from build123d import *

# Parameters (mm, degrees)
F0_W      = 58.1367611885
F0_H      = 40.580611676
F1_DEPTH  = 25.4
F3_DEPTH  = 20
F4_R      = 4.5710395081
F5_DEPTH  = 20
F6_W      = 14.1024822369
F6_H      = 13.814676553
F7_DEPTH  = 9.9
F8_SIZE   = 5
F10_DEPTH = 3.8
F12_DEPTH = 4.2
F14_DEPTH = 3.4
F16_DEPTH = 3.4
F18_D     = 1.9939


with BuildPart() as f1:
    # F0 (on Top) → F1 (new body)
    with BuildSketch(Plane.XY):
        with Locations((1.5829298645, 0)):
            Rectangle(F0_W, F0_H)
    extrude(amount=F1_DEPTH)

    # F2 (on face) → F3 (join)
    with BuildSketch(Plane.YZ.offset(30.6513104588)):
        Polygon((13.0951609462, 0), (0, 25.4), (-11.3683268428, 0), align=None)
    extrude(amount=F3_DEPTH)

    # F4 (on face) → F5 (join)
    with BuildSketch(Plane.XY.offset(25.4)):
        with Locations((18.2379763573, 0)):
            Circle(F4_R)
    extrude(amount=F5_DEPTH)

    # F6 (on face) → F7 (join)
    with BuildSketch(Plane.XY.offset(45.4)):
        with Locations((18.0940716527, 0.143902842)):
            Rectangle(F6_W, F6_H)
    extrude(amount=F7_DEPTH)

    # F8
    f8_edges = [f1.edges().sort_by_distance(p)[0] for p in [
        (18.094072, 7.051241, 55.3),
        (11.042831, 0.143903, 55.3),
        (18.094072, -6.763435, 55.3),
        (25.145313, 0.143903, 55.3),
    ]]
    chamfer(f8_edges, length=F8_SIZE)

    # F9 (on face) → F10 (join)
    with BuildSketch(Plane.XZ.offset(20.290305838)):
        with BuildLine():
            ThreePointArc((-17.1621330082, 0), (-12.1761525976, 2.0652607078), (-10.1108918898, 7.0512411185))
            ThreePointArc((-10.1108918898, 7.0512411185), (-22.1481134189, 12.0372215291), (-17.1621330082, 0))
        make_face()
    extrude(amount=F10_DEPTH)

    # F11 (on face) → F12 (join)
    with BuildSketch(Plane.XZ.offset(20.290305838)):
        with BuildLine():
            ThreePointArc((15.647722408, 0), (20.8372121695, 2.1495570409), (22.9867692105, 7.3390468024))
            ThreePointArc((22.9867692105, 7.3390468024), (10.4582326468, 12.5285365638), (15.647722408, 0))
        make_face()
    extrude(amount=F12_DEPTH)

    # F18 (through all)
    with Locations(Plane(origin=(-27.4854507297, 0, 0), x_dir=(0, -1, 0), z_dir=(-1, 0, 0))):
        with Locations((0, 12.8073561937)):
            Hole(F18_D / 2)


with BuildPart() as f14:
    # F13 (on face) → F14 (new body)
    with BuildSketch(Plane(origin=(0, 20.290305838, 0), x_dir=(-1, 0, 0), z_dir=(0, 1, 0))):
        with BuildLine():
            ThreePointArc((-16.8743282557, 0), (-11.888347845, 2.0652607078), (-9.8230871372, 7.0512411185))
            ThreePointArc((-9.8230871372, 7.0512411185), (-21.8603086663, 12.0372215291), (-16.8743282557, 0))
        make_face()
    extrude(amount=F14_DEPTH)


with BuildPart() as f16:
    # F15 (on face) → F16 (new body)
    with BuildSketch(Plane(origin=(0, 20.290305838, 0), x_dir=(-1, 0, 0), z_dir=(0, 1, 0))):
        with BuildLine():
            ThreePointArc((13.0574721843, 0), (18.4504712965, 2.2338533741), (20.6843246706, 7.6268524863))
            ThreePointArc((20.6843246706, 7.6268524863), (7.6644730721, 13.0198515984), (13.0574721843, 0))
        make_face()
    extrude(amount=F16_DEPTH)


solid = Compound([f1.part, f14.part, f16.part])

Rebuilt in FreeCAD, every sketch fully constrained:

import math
import FreeCAD as App
import Part
import Sketcher
from FreeCAD import Vector
Q = App.Units.Quantity


def edges_at(feature, points):
    """Names of the edges that pass closest to the given points."""
    edges = feature.Shape.Edges
    near = lambda p: min(range(len(edges)), key=lambda i: edges[i].distToShape(Part.Vertex(*p))[0])
    return sorted({f"Edge{near(p) + 1}" for p in points})

doc = App.newDocument("Part")
body = doc.addObject("PartDesign::Body", "Body")

sketch1 = doc.addObject("Sketcher::SketchObject", "Sketch")
body.addObject(sketch1)
sketch1.AttachmentSupport = (doc.XY_Plane, [""])
sketch1.MapMode = "FlatFace"
sketch1.addGeometry([
    Part.LineSegment(Vector(-27, 20, 0), Vector(-27, -20, 0)),
    Part.LineSegment(Vector(-27, -20, 0), Vector(31, -20, 0)),
    Part.LineSegment(Vector(31, -20, 0), Vector(31, 20, 0)),
    Part.LineSegment(Vector(31, 20, 0), Vector(-27, 20, 0)),
], False)
sketch1.addConstraint([
    Sketcher.Constraint("Coincident", 0, 2, 1, 1),
    Sketcher.Constraint("Coincident", 1, 2, 2, 1),
    Sketcher.Constraint("Coincident", 2, 2, 3, 1),
    Sketcher.Constraint("Coincident", 3, 2, 0, 1),
    Sketcher.Constraint("Vertical", 0),
    Sketcher.Constraint("Horizontal", 1),
    Sketcher.Constraint("Vertical", 2),
    Sketcher.Constraint("Horizontal", 3),
    Sketcher.Constraint("DistanceX", 1, 1, 1, 2, Q("58.136761 mm")),
    Sketcher.Constraint("DistanceY", 0, 2, 0, 1, Q("40.580612 mm")),
    Sketcher.Constraint("DistanceX", 0, 2, -1, 1, Q("27.485451 mm")),
    Sketcher.Constraint("DistanceY", 0, 2, -1, 1, Q("20.290306 mm")),
])
pad1 = doc.addObject("PartDesign::Pad", "Pad")
body.addObject(pad1)
pad1.Profile = sketch1
pad1.Length = 25.4

sketch2 = doc.addObject("Sketcher::SketchObject", "Sketch001")
body.addObject(sketch2)
sketch2.AttachmentSupport = (doc.YZ_Plane, [""])
sketch2.MapMode = "FlatFace"
sketch2.AttachmentOffset = App.Placement(Vector(0, 0, 30.65131), App.Rotation())
sketch2.addGeometry([
    Part.LineSegment(Vector(13, 0, 0), Vector(0, 25, 0)),
    Part.LineSegment(Vector(0, 25, 0), Vector(-11, 0, 0)),
    Part.LineSegment(Vector(-11, 0, 0), Vector(13, 0, 0)),
], False)
sketch2.addConstraint([
    Sketcher.Constraint("Coincident", 0, 2, 1, 1),
    Sketcher.Constraint("Coincident", 1, 2, 2, 1),
    Sketcher.Constraint("Coincident", 2, 2, 0, 1),
    Sketcher.Constraint("Horizontal", 2),
    Sketcher.Constraint("PointOnObject", 0, 2, -2),
    Sketcher.Constraint("PointOnObject", 1, 2, -1),
    Sketcher.Constraint("DistanceY", -1, 1, 0, 2, Q("25.4 mm")),
    Sketcher.Constraint("Distance", 0, Q("28.57697 mm")),
    Sketcher.Constraint("DistanceX", 2, 1, 2, 2, Q("24.463488 mm")),
])
pad2 = doc.addObject("PartDesign::Pad", "Pad001")
body.addObject(pad2)
pad2.Profile = sketch2
pad2.Length = 20

sketch3 = doc.addObject("Sketcher::SketchObject", "Sketch002")
body.addObject(sketch3)
sketch3.AttachmentSupport = (doc.XY_Plane, [""])
sketch3.MapMode = "FlatFace"
sketch3.AttachmentOffset = App.Placement(Vector(0, 0, 25.4), App.Rotation())
sketch3.addGeometry(Part.Circle(Vector(18.2, 0, 0), Vector(0, 0, 1), 4.6), False)
sketch3.addConstraint([
    Sketcher.Constraint("PointOnObject", 0, 3, -1),
    Sketcher.Constraint("Diameter", 0, Q("9.142079 mm")),
    Sketcher.Constraint("DistanceX", -1, 1, 0, 3, Q("18.237976 mm")),
])
pad3 = doc.addObject("PartDesign::Pad", "Pad002")
body.addObject(pad3)
pad3.Profile = sketch3
pad3.Length = 20

sketch4 = doc.addObject("Sketcher::SketchObject", "Sketch003")
body.addObject(sketch4)
sketch4.AttachmentSupport = (doc.XY_Plane, [""])
sketch4.MapMode = "FlatFace"
sketch4.AttachmentOffset = App.Placement(Vector(0, 0, 45.4), App.Rotation())
sketch4.addGeometry([
    Part.LineSegment(Vector(11, 7, 0), Vector(11, -7, 0)),
    Part.LineSegment(Vector(11, -7, 0), Vector(25, -7, 0)),
    Part.LineSegment(Vector(25, -7, 0), Vector(25, 7, 0)),
    Part.LineSegment(Vector(25, 7, 0), Vector(11, 7, 0)),
], False)
sketch4.addConstraint([
    Sketcher.Constraint("Coincident", 0, 2, 1, 1),
    Sketcher.Constraint("Coincident", 1, 2, 2, 1),
    Sketcher.Constraint("Coincident", 2, 2, 3, 1),
    Sketcher.Constraint("Coincident", 3, 2, 0, 1),
    Sketcher.Constraint("Vertical", 0),
    Sketcher.Constraint("Horizontal", 1),
    Sketcher.Constraint("Vertical", 2),
    Sketcher.Constraint("Horizontal", 3),
    Sketcher.Constraint("DistanceX", 1, 1, 1, 2, Q("14.102482 mm")),
    Sketcher.Constraint("DistanceY", 0, 2, 0, 1, Q("13.814677 mm")),
    Sketcher.Constraint("DistanceX", -1, 1, 0, 2, Q("11.042831 mm")),
    Sketcher.Constraint("DistanceY", -1, 1, 2, 2, Q("7.051241 mm")),
])
pad4 = doc.addObject("PartDesign::Pad", "Pad003")
body.addObject(pad4)
pad4.Profile = sketch4
pad4.Length = 9.9
doc.recompute()

chamfer = doc.addObject("PartDesign::Chamfer", "Chamfer")
body.addObject(chamfer)
chamfer.Base = (pad4, edges_at(pad4, [
    (18.094, 7.051, 55.3),
    (11.043, 0.144, 55.3),
    (18.094, -6.763, 55.3),
    (25.145, 0.144, 55.3),
]))
chamfer.Size = 5

sketch5 = doc.addObject("Sketcher::SketchObject", "Sketch004")
body.addObject(sketch5)
sketch5.AttachmentSupport = (doc.XZ_Plane, [""])
sketch5.MapMode = "FlatFace"
sketch5.AttachmentOffset = App.Placement(Vector(0, 0, 20.290306), App.Rotation())
sketch5.addGeometry([
    Part.ArcOfCircle(Part.Circle(Vector(-17, 7, 0), Vector(0, 0, 1), 7), math.radians(-90), math.radians(0)),
    Part.ArcOfCircle(Part.Circle(Vector(-17, 7, 0), Vector(0, 0, 1), 7), math.radians(0), math.radians(270)),
], False)
sketch5.addConstraint([
    Sketcher.Constraint("Tangent", 0, 1, 1, 2),
    Sketcher.Constraint("Coincident", 1, 1, 0, 2),
    Sketcher.Constraint("PointOnObject", 0, 1, -1),
    Sketcher.Constraint("Horizontal", 0, 3, 1, 1),
    Sketcher.Constraint("Vertical", 1, 3, 0, 1),
    Sketcher.Constraint("Radius", 0, Q("7.051241 mm")),
    Sketcher.Constraint("DistanceX", 1, 1, -1, 1, Q("10.110892 mm")),
])
pad5 = doc.addObject("PartDesign::Pad", "Pad004")
body.addObject(pad5)
pad5.Profile = sketch5
pad5.Length = 3.8

sketch6 = doc.addObject("Sketcher::SketchObject", "Sketch005")
body.addObject(sketch6)
sketch6.AttachmentSupport = (doc.XZ_Plane, [""])
sketch6.MapMode = "FlatFace"
sketch6.AttachmentOffset = App.Placement(Vector(0, 0, 20.290306), App.Rotation())
sketch6.addGeometry([
    Part.ArcOfCircle(Part.Circle(Vector(16, 7, 0), Vector(0, 0, 1), 7), math.radians(-90), math.radians(0)),
    Part.ArcOfCircle(Part.Circle(Vector(16, 7, 0), Vector(0, 0, 1), 7), math.radians(0), math.radians(270)),
], False)
sketch6.addConstraint([
    Sketcher.Constraint("Tangent", 0, 1, 1, 2),
    Sketcher.Constraint("Coincident", 1, 1, 0, 2),
    Sketcher.Constraint("PointOnObject", 0, 1, -1),
    Sketcher.Constraint("Horizontal", 0, 3, 1, 1),
    Sketcher.Constraint("Vertical", 1, 3, 0, 1),
    Sketcher.Constraint("Radius", 0, Q("7.339047 mm")),
    Sketcher.Constraint("DistanceX", -1, 1, 1, 1, Q("22.986769 mm")),
])
pad6 = doc.addObject("PartDesign::Pad", "Pad005")
body.addObject(pad6)
pad6.Profile = sketch6
pad6.Length = 4.2

sketch7 = doc.addObject("Sketcher::SketchObject", "Sketch006")
body.addObject(sketch7)
sketch7.AttachmentSupport = (doc.YZ_Plane, [""])
sketch7.MapMode = "FlatFace"
sketch7.AttachmentOffset = App.Placement(Vector(0, 0, -27.485451), App.Rotation())
sketch7.addGeometry(Part.Circle(Vector(0, 12.8, 0), Vector(0, 0, 1), 1), False)
sketch7.addConstraint([
    Sketcher.Constraint("PointOnObject", 0, 3, -2),
    Sketcher.Constraint("Diameter", 0, Q("1.9939 mm")),
    Sketcher.Constraint("DistanceY", -1, 1, 0, 3, Q("12.807356 mm")),
])
doc.recompute()
hole = doc.addObject("PartDesign::Hole", "Hole")
body.addObject(hole)
hole.Profile = sketch7
hole.ThreadType = "None"
hole.Diameter = 1.9939
hole.DepthType = "ThroughAll"
hole.Reversed = True
body2 = doc.addObject("PartDesign::Body", "Body001")

sketch8 = doc.addObject("Sketcher::SketchObject", "Sketch007")
body2.addObject(sketch8)
sketch8.AttachmentSupport = (doc.getObject("XZ_Plane001"), [""])
sketch8.MapMode = "FlatFace"
sketch8.AttachmentOffset = App.Placement(Vector(0, 0, -20.290306), App.Rotation())
sketch8.addGeometry([
    Part.ArcOfCircle(Part.Circle(Vector(17, 7, 0), Vector(0, 0, 1), 7), math.radians(180), math.radians(270)),
    Part.ArcOfCircle(Part.Circle(Vector(17, 7, 0), Vector(0, 0, 1), 7), math.radians(-90), math.radians(180)),
], False)
sketch8.addConstraint([
    Sketcher.Constraint("Tangent", 0, 1, 1, 2),
    Sketcher.Constraint("Coincident", 1, 1, 0, 2),
    Sketcher.Constraint("PointOnObject", 1, 1, -1),
    Sketcher.Constraint("Horizontal", 1, 3, 0, 1),
    Sketcher.Constraint("Vertical", 0, 3, 1, 1),
    Sketcher.Constraint("Radius", 0, Q("7.051241 mm")),
    Sketcher.Constraint("DistanceX", -1, 1, 0, 3, Q("16.874328 mm")),
])
pad7 = doc.addObject("PartDesign::Pad", "Pad006")
body2.addObject(pad7)
pad7.Profile = sketch8
pad7.Length = 3.4
pad7.Reversed = True
body3 = doc.addObject("PartDesign::Body", "Body002")

sketch9 = doc.addObject("Sketcher::SketchObject", "Sketch008")
body3.addObject(sketch9)
sketch9.AttachmentSupport = (doc.getObject("XZ_Plane002"), [""])
sketch9.MapMode = "FlatFace"
sketch9.AttachmentOffset = App.Placement(Vector(0, 0, -20.290306), App.Rotation())
sketch9.addGeometry([
    Part.ArcOfCircle(Part.Circle(Vector(-13, 8, 0), Vector(0, 0, 1), 8), math.radians(180), math.radians(270)),
    Part.ArcOfCircle(Part.Circle(Vector(-13, 8, 0), Vector(0, 0, 1), 8), math.radians(-90), math.radians(180)),
], False)
sketch9.addConstraint([
    Sketcher.Constraint("Tangent", 0, 1, 1, 2),
    Sketcher.Constraint("Coincident", 1, 1, 0, 2),
    Sketcher.Constraint("PointOnObject", 1, 1, -1),
    Sketcher.Constraint("Horizontal", 1, 3, 0, 1),
    Sketcher.Constraint("Vertical", 0, 3, 1, 1),
    Sketcher.Constraint("Radius", 0, Q("7.626852 mm")),
    Sketcher.Constraint("DistanceX", 0, 3, -1, 1, Q("13.057472 mm")),
])
pad8 = doc.addObject("PartDesign::Pad", "Pad007")
body3.addObject(pad8)
pad8.Profile = sketch9
pad8.Length = 3.4
pad8.Reversed = True

doc.recompute()
